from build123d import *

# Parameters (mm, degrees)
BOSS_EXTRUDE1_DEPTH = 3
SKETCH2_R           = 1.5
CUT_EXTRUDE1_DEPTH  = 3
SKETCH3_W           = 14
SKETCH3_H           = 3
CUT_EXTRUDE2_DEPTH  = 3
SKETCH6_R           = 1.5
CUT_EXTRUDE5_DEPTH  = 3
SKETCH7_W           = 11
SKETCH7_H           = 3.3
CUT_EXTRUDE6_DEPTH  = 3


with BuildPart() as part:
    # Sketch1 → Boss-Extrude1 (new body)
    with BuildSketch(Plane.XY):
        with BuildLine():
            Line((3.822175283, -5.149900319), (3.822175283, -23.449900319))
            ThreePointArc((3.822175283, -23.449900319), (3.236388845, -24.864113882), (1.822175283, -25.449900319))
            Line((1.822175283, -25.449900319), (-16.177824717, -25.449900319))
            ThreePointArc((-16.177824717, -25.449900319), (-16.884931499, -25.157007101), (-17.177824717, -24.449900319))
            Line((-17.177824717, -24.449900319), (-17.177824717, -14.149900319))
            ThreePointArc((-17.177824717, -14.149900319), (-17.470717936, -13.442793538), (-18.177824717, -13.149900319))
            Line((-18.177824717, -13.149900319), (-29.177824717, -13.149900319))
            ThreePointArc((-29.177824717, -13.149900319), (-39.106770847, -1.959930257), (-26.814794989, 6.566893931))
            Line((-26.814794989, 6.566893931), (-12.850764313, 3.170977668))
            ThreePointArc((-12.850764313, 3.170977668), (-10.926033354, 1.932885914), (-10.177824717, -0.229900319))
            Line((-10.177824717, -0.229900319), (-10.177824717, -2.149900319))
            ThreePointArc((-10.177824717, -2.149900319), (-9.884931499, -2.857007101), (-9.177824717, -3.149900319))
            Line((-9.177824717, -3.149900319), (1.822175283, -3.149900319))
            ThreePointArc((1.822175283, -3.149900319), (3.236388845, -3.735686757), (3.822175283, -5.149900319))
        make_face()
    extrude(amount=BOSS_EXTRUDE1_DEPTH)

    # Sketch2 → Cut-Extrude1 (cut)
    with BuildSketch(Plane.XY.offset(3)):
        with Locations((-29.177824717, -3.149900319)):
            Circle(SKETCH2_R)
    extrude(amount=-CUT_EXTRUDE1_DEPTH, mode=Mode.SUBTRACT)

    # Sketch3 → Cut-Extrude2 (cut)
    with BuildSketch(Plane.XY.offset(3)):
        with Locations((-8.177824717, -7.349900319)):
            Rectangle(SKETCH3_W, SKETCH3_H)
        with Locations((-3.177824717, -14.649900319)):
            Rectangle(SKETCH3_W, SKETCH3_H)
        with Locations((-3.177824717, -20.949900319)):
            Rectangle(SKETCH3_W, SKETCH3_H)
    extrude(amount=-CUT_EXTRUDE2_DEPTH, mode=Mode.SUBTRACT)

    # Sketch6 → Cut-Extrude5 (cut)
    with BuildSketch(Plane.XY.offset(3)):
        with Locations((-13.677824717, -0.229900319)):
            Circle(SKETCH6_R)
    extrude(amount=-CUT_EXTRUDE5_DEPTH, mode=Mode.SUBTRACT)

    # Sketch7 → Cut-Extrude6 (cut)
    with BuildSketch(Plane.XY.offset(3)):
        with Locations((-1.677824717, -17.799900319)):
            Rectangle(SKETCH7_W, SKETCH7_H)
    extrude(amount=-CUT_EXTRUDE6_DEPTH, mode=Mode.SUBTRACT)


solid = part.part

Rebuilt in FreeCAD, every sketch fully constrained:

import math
import FreeCAD as App
import Part
import Sketcher

doc = App.newDocument("Part")
body = doc.addObject("PartDesign::Body", "Body")

# Sketch on XY plane
sketch1 = body.newObject("Sketcher::SketchObject", "Sketch")
sketch1.AttachmentSupport = (doc.getObject("XY_Plane"), [""])
sketch1.MapMode = "FlatFace"
sketch1.addGeometry([
    Part.LineSegment(App.Vector(3.8, -23.4, 0), App.Vector(3.8, -5.1, 0)),  # 0
    Part.ArcOfCircle(Part.Circle(App.Vector(1.8, -5.1, 0), App.Vector(0, 0, 1), 2), math.radians(0), math.radians(90)),  # 1
    Part.LineSegment(App.Vector(1.8, -3.1, 0), App.Vector(-9.2, -3.1, 0)),  # 2
    Part.ArcOfCircle(Part.Circle(App.Vector(-9.2, -2.1, 0), App.Vector(0, 0, 1), 1), math.radians(180), math.radians(270)),  # 3
    Part.LineSegment(App.Vector(-10.2, -2.1, 0), App.Vector(-10.2, -0.2, 0)),  # 4
    Part.ArcOfCircle(Part.Circle(App.Vector(-13.7, -0.2, 0), App.Vector(0, 0, 1), 3.5), math.radians(0), math.radians(76)),  # 5
    Part.LineSegment(App.Vector(-12.9, 3.2, 0), App.Vector(-26.8, 6.6, 0)),  # 6
    Part.ArcOfCircle(Part.Circle(App.Vector(-29.2, -3.1, 0), App.Vector(0, 0, 1), 10), math.radians(76), math.radians(270)),  # 7
    Part.LineSegment(App.Vector(-29.2, -13.1, 0), App.Vector(-18.2, -13.1, 0)),  # 8
    Part.ArcOfCircle(Part.Circle(App.Vector(-18.2, -14.1, 0), App.Vector(0, 0, 1), 1), math.radians(0), math.radians(90)),  # 9
    Part.LineSegment(App.Vector(-17.2, -14.1, 0), App.Vector(-17.2, -24.4, 0)),  # 10
    Part.ArcOfCircle(Part.Circle(App.Vector(-16.2, -24.4, 0), App.Vector(0, 0, 1), 1), math.radians(180), math.radians(270)),  # 11
    Part.LineSegment(App.Vector(-16.2, -25.4, 0), App.Vector(1.8, -25.4, 0)),  # 12
    Part.ArcOfCircle(Part.Circle(App.Vector(1.8, -23.4, 0), App.Vector(0, 0, 1), 2), math.radians(-90), math.radians(0)),  # 13
], False)
sketch1.addConstraint([
    Sketcher.Constraint("Tangent", 0, 2, 1, 1),
    Sketcher.Constraint("Tangent", 1, 2, 2, 1),
    Sketcher.Constraint("Tangent", 2, 2, 3, 2),
    Sketcher.Constraint("Tangent", 3, 1, 4, 1),
    Sketcher.Constraint("Tangent", 4, 2, 5, 1),
    Sketcher.Constraint("Tangent", 5, 2, 6, 1),
    Sketcher.Constraint("Tangent", 6, 2, 7, 1),
    Sketcher.Constraint("Tangent", 7, 2, 8, 1),
    Sketcher.Constraint("Tangent", 8, 2, 9, 2),
    Sketcher.Constraint("Tangent", 9, 1, 10, 1),
    Sketcher.Constraint("Tangent", 10, 2, 11, 1),
    Sketcher.Constraint("Tangent", 11, 2, 12, 1),
    Sketcher.Constraint("Tangent", 12, 2, 13, 1),
    Sketcher.Constraint("Tangent", 13, 2, 0, 1),
    Sketcher.Constraint("Vertical", 0),
    Sketcher.Constraint("Horizontal", 2),
    Sketcher.Constraint("Vertical", 4),
    Sketcher.Constraint("Horizontal", 8),
    Sketcher.Constraint("Vertical", 10),
    Sketcher.Constraint("Horizontal", 12),
    Sketcher.Constraint("Equal", 3, 9),
    Sketcher.Constraint("Equal", 9, 11),
    Sketcher.Constraint("Equal", 1, 13),
    Sketcher.Constraint("Horizontal", 7, 3, 1, 2),
    Sketcher.Constraint("Equal", 2, 8),
    Sketcher.Constraint("Radius", 1, 2.0),
    Sketcher.Constraint("Radius", 3, 1.0),
    Sketcher.Constraint("Radius", 7, 10.0),
    Sketcher.Constraint("Radius", 5, 3.5),
    Sketcher.Constraint("DistanceX", 2, 2, 2, 1, 11.0),
    Sketcher.Constraint("DistanceX", 12, 1, 12, 2, 18.0),
    Sketcher.Constraint("DistanceY", 0, 1, 0, 2, 18.3),
    Sketcher.Constraint("DistanceY", 4, 1, 4, 2, 1.92),
    Sketcher.Constraint("DistanceY", 1, 3, -1, 1, 5.1499),
    Sketcher.Constraint("DistanceX", -1, 1, 1, 3, 1.822175),
])
pad1 = body.newObject("PartDesign::Pad", "Pad")
pad1.Profile = sketch1
pad1.Length = 3

# Sketch on XY plane
sketch2 = body.newObject("Sketcher::SketchObject", "Sketch001")
sketch2.AttachmentSupport = (doc.getObject("XY_Plane"), [""])
sketch2.MapMode = "FlatFace"
sketch2.AttachmentOffset = App.Placement(App.Vector(0, 0, 3), App.Rotation())
sketch2.addGeometry(Part.Circle(App.Vector(-29.2, -3.1, 0), App.Vector(0, 0, 1), 1.5), False)
sketch2.addConstraint([
    Sketcher.Constraint("Diameter", 0, 3.0),
    Sketcher.Constraint("DistanceY", 0, 3, -1, 1, 3.1499),
    Sketcher.Constraint("DistanceX", 0, 3, -1, 1, 29.177825),
])
pocket1 = body.newObject("PartDesign::Pocket", "Pocket")
pocket1.Profile = sketch2
pocket1.Length = 3

# Sketch on XY plane
sketch3 = body.newObject("Sketcher::SketchObject", "Sketch002")
sketch3.AttachmentSupport = (doc.getObject("XY_Plane"), [""])
sketch3.MapMode = "FlatFace"
sketch3.AttachmentOffset = App.Placement(App.Vector(0, 0, 3), App.Rotation())
sketch3.addGeometry([
    Part.LineSegment(App.Vector(-15.2, -5.8, 0), App.Vector(-15.2, -8.8, 0)),  # 0
    Part.LineSegment(App.Vector(-15.2, -8.8, 0), App.Vector(-1.2, -8.8, 0)),  # 1
    Part.LineSegment(App.Vector(-1.2, -8.8, 0), App.Vector(-1.2, -5.8, 0)),  # 2
    Part.LineSegment(App.Vector(-1.2, -5.8, 0), App.Vector(-15.2, -5.8, 0)),  # 3
    Part.LineSegment(App.Vector(-10.2, -13.1, 0), App.Vector(-10.2, -16.1, 0)),  # 4
    Part.LineSegment(App.Vector(-10.2, -16.1, 0), App.Vector(3.8, -16.1, 0)),  # 5
    Part.LineSegment(App.Vector(3.8, -16.1, 0), App.Vector(3.8, -13.1, 0)),  # 6
    Part.LineSegment(App.Vector(3.8, -13.1, 0), App.Vector(-10.2, -13.1, 0)),  # 7
    Part.LineSegment(App.Vector(-10.2, -19.4, 0), App.Vector(-10.2, -22.4, 0)),  # 8
    Part.LineSegment(App.Vector(-10.2, -22.4, 0), App.Vector(3.8, -22.4, 0)),  # 9
    Part.LineSegment(App.Vector(3.8, -22.4, 0), App.Vector(3.8, -19.4, 0)),  # 10
    Part.LineSegment(App.Vector(3.8, -19.4, 0), App.Vector(-10.2, -19.4, 0)),  # 11
], False)
sketch3.addConstraint([
    Sketcher.Constraint("Coincident", 0, 2, 1, 1),
    Sketcher.Constraint("Coincident", 1, 2, 2, 1),
    Sketcher.Constraint("Coincident", 2, 2, 3, 1),
    Sketcher.Constraint("Coincident", 3, 2, 0, 1),
    Sketcher.Constraint("Coincident", 4, 2, 5, 1),
    Sketcher.Constraint("Coincident", 5, 2, 6, 1),
    Sketcher.Constraint("Coincident", 6, 2, 7, 1),
    Sketcher.Constraint("Coincident", 7, 2, 4, 1),
    Sketcher.Constraint("Coincident", 8, 2, 9, 1),
    Sketcher.Constraint("Coincident", 9, 2, 10, 1),
    Sketcher.Constraint("Coincident", 10, 2, 11, 1),
    Sketcher.Constraint("Coincident", 11, 2, 8, 1),
    Sketcher.Constraint("Vertical", 0),
    Sketcher.Constraint("Horizontal", 1),
    Sketcher.Constraint("Vertical", 2),
    Sketcher.Constraint("Horizontal", 3),
    Sketcher.Constraint("Vertical", 4),
    Sketcher.Constraint("Horizontal", 5),
    Sketcher.Constraint("Vertical", 6),
    Sketcher.Constraint("Horizontal", 7),
    Sketcher.Constraint("Vertical", 8),
    Sketcher.Constraint("Horizontal", 9),
    Sketcher.Constraint("Vertical", 10),
    Sketcher.Constraint("Horizontal", 11),
    Sketcher.Constraint("Vertical", 7, 2, 8, 2),
    Sketcher.Constraint("Vertical", 6, 2, 9, 2),
    Sketcher.Constraint("Equal", 3, 5),
    Sketcher.Constraint("Equal", 2, 4),
    Sketcher.Constraint("Equal", 6, 8),
    Sketcher.Constraint("DistanceX", 1, 1, 1, 2, 14.0),
    Sketcher.Constraint("DistanceY", 0, 2, 0, 1, 3.0),
    Sketcher.Constraint("DistanceX", 0, 2, 4, 2, 5.0),
    Sketcher.Constraint("DistanceY", 4, 2, 0, 2, 7.3),
    Sketcher.Constraint("DistanceY", 8, 2, 4, 2, 6.3),
    Sketcher.Constraint("DistanceY", 0, 2, -1, 1, 8.8499),
    Sketcher.Constraint("DistanceX", 0, 2, -1, 1, 15.177825),
])
pocket2 = body.newObject("PartDesign::Pocket", "Pocket001")
pocket2.Profile = sketch3
pocket2.Length = 3

# Sketch on XY plane
sketch4 = body.newObject("Sketcher::SketchObject", "Sketch003")
sketch4.AttachmentSupport = (doc.getObject("XY_Plane"), [""])
sketch4.MapMode = "FlatFace"
sketch4.AttachmentOffset = App.Placement(App.Vector(0, 0, 3), App.Rotation())
sketch4.addGeometry(Part.Circle(App.Vector(-13.7, -0.2, 0), App.Vector(0, 0, 1), 1.5), False)
sketch4.addConstraint([
    Sketcher.Constraint("Diameter", 0, 3.0),
    Sketcher.Constraint("DistanceY", 0, 3, -1, 1, 0.2299),
    Sketcher.Constraint("DistanceX", 0, 3, -1, 1, 13.677825),
])
pocket3 = body.newObject("PartDesign::Pocket", "Pocket002")
pocket3.Profile = sketch4
pocket3.Length = 3

# Sketch on XY plane
sketch5 = body.newObject("Sketcher::SketchObject", "Sketch004")
sketch5.AttachmentSupport = (doc.getObject("XY_Plane"), [""])
sketch5.MapMode = "FlatFace"
sketch5.AttachmentOffset = App.Placement(App.Vector(0, 0, 3), App.Rotation())
sketch5.addGeometry([
    Part.LineSegment(App.Vector(-7.2, -16.1, 0), App.Vector(-7.2, -19.4, 0)),
    Part.LineSegment(App.Vector(-7.2, -19.4, 0), App.Vector(3.8, -19.4, 0)),
    Part.LineSegment(App.Vector(3.8, -19.4, 0), App.Vector(3.8, -16.1, 0)),
    Part.LineSegment(App.Vector(3.8, -16.1, 0), App.Vector(-7.2, -16.1, 0)),
], False)
sketch5.addConstraint([
    Sketcher.Constraint("Coincident", 0, 2, 1, 1),
    Sketcher.Constraint("Coincident", 1, 2, 2, 1),
    Sketcher.Constraint("Coincident", 2, 2, 3, 1),
    Sketcher.Constraint("Coincident", 3, 2, 0, 1),
    Sketcher.Constraint("Vertical", 0),
    Sketcher.Constraint("Horizontal", 1),
    Sketcher.Constraint("Vertical", 2),
    Sketcher.Constraint("Horizontal", 3),
    Sketcher.Constraint("DistanceX", 1, 1, 1, 2, 11.0),
    Sketcher.Constraint("DistanceY", 0, 2, 0, 1, 3.3),
    Sketcher.Constraint("DistanceY", 0, 2, -1, 1, 19.4499),
    Sketcher.Constraint("DistanceX", 0, 2, -1, 1, 7.177825),
])
pocket4 = body.newObject("PartDesign::Pocket", "Pocket003")
pocket4.Profile = sketch5
pocket4.Length = 3

doc.recompute()
